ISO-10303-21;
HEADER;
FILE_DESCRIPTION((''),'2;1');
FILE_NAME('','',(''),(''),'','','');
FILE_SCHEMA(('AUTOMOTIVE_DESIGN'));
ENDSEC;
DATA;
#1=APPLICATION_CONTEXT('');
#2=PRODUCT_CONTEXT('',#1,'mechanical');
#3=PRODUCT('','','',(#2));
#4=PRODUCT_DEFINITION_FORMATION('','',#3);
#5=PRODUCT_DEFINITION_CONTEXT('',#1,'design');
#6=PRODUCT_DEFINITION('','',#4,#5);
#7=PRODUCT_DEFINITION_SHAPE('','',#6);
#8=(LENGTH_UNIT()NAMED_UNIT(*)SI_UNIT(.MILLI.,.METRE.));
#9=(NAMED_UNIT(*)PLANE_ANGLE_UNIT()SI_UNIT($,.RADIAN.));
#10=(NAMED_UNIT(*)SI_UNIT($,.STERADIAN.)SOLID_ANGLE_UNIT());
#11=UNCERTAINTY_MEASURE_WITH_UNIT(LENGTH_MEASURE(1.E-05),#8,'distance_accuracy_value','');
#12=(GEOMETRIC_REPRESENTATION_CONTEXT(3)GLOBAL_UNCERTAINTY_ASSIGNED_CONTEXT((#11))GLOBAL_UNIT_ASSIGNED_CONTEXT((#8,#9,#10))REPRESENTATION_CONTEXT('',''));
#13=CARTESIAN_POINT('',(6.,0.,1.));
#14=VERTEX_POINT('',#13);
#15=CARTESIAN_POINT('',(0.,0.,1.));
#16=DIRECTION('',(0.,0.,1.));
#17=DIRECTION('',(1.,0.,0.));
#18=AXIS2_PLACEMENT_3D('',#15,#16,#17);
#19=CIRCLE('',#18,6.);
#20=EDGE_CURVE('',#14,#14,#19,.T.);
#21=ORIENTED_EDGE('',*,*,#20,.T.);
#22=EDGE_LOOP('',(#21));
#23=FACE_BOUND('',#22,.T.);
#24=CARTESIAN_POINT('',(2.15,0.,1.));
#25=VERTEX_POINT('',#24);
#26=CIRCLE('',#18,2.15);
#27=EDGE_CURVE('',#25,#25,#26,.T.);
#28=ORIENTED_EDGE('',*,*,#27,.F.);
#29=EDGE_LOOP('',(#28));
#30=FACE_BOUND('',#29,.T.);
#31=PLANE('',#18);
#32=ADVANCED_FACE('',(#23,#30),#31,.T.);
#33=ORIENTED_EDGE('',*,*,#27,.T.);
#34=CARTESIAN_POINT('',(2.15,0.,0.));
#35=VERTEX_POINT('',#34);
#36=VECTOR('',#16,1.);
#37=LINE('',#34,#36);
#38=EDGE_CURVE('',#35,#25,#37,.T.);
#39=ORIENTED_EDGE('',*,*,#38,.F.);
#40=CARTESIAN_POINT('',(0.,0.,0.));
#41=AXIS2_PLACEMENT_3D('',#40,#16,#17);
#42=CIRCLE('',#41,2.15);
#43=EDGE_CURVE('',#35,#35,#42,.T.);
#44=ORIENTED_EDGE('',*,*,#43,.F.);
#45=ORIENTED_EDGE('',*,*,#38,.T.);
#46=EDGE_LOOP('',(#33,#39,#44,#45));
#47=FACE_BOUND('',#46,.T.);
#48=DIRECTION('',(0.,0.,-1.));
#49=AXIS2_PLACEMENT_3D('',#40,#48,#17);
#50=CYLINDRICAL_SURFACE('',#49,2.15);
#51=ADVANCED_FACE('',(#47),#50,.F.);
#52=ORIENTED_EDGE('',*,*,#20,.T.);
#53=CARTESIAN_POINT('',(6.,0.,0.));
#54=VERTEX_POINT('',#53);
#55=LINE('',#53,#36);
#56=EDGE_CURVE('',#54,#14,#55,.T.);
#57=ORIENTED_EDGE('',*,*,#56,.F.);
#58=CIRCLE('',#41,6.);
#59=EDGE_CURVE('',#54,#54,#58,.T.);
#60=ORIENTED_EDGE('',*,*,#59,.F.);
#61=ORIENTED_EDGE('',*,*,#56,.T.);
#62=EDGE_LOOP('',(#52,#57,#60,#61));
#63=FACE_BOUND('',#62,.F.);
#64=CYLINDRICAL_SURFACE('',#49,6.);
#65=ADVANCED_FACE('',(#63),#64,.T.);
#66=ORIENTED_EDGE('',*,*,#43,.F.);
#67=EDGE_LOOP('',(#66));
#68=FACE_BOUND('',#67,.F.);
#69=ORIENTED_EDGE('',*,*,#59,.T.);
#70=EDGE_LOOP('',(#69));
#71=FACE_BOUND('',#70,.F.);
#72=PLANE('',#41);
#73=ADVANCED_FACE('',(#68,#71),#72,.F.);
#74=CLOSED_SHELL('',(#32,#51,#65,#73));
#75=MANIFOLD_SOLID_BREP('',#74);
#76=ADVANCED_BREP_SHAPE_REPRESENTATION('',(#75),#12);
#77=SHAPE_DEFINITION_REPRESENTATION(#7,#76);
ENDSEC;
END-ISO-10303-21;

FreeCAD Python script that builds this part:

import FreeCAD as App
import Part
import Sketcher
from FreeCAD import Vector
Q = App.Units.Quantity

doc = App.newDocument("Part")
body = doc.addObject("PartDesign::Body", "Body")

sketch1 = body.newObject("Sketcher::SketchObject", "Sketch")
sketch1.AttachmentSupport = (doc.getObject("XY_Plane"), [""])
sketch1.MapMode = "FlatFace"
sketch1.addGeometry([
    Part.Circle(Vector(0, 0, 0), Vector(0, 0, 1), 6),
    Part.Circle(Vector(0, 0, 0), Vector(0, 0, 1), 2.1),
], False)
sketch1.addConstraint([
    Sketcher.Constraint("Coincident", 0, 3, -1, 1),
    Sketcher.Constraint("Coincident", 1, 3, -1, 1),
    Sketcher.Constraint("Diameter", 0, Q("12 mm")),
    Sketcher.Constraint("Diameter", 1, Q("4.3 mm")),
])
pad1 = body.newObject("PartDesign::Pad", "Pad")
pad1.Profile = sketch1
pad1.Length = 1

doc.recompute()
